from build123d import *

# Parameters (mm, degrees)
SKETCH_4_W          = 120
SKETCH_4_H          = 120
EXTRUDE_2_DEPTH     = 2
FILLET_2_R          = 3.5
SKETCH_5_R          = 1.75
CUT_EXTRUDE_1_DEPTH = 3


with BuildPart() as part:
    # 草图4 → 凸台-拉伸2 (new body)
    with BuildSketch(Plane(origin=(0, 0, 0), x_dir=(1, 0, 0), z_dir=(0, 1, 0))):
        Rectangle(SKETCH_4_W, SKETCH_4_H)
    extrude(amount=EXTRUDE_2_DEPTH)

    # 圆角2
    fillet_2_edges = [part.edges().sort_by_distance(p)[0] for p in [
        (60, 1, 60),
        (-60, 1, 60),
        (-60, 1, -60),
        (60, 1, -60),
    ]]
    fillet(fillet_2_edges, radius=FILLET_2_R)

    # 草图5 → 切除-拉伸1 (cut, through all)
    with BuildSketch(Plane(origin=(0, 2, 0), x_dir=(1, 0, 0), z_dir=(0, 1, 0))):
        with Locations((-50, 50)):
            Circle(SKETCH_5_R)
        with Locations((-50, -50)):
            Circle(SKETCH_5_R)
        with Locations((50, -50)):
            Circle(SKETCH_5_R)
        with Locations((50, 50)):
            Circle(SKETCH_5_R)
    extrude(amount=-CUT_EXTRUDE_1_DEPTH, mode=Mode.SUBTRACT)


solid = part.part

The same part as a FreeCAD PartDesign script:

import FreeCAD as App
import Part
import Sketcher


def edges_at(feature, points):
    """Names of the edges that pass closest to the given points."""
    edges = feature.Shape.Edges
    near = lambda p: min(range(len(edges)), key=lambda i: edges[i].distToShape(Part.Vertex(*p))[0])
    return sorted({f"Edge{near(p) + 1}" for p in points})

doc = App.newDocument("Part")
params = doc.addObject("Spreadsheet::Sheet", "Params")
for row, (alias, value) in enumerate([
    ("sketch1_width", "120 mm"),
    ("pad1_length", "2 mm"),
    ("fillet_radius", "3.5 mm"),
    ("sketch2_diameter", "3.5 mm"),
], start=1):
    params.set(f"A{row}", alias)
    params.set(f"B{row}", "=" + value)
    params.setAlias(f"B{row}", alias)

body = doc.addObject("PartDesign::Body", "Body")

# Sketch on XZ plane
sketch1 = body.newObject("Sketcher::SketchObject", "Sketch")
sketch1.AttachmentSupport = (doc.getObject("XZ_Plane"), [""])
sketch1.MapMode = "FlatFace"
sketch1.addGeometry(Part.LineSegment(App.Vector(-60, -60, 0), App.Vector(-60, 60, 0)), False)
sketch1.addGeometry(Part.LineSegment(App.Vector(-60, 60, 0), App.Vector(60, 60, 0)), False)
sketch1.addGeometry(Part.LineSegment(App.Vector(60, 60, 0), App.Vector(60, -60, 0)), False)
sketch1.addGeometry(Part.LineSegment(App.Vector(60, -60, 0), App.Vector(-60, -60, 0)), False)
sketch1.addConstraint(Sketcher.Constraint("Coincident", 0, 2, 1, 1))
sketch1.addConstraint(Sketcher.Constraint("Coincident", 1, 2, 2, 1))
sketch1.addConstraint(Sketcher.Constraint("Coincident", 2, 2, 3, 1))
sketch1.addConstraint(Sketcher.Constraint("Coincident", 3, 2, 0, 1))
sketch1.addConstraint(Sketcher.Constraint("Vertical", 0))
sketch1.addConstraint(Sketcher.Constraint("Horizontal", 1))
sketch1.addConstraint(Sketcher.Constraint("Vertical", 2))
sketch1.addConstraint(Sketcher.Constraint("Horizontal", 3))
sketch1.addConstraint(Sketcher.Constraint("Symmetric", 0, 2, 2, 2, -1, 1))
sketch1.addConstraint(Sketcher.Constraint("Equal", 3, 0))
sketch1.addConstraint(Sketcher.Constraint("DistanceX", 1, 1, 1, 2, 120.0))
sketch1.setExpression("Constraints[10]", "Params.sketch1_width")
pad1 = body.newObject("PartDesign::Pad", "Pad")
pad1.Profile = sketch1
pad1.setExpression("Length", "Params.pad1_length")
pad1.Reversed = True
doc.recompute()

fillet = body.newObject("PartDesign::Fillet", "Fillet")
fillet.Base = (pad1, edges_at(pad1, [
    (60, 1, 60),
    (-60, 1, 60),
    (-60, 1, -60),
    (60, 1, -60),
]))
fillet.setExpression("Radius", "Params.fillet_radius")

# Sketch on XZ plane
sketch2 = body.newObject("Sketcher::SketchObject", "Sketch001")
sketch2.AttachmentSupport = (doc.getObject("XZ_Plane"), [""])
sketch2.MapMode = "FlatFace"
sketch2.AttachmentOffset = App.Placement(App.Vector(0, 0, -2), App.Rotation())
sketch2.addGeometry(Part.Circle(App.Vector(-50, -50, 0), App.Vector(0, 0, 1), 1.8), False)
sketch2.addGeometry(Part.Circle(App.Vector(-50, 50, 0), App.Vector(0, 0, 1), 1.8), False)
sketch2.addGeometry(Part.Circle(App.Vector(50, 50, 0), App.Vector(0, 0, 1), 1.8), False)
sketch2.addGeometry(Part.Circle(App.Vector(50, -50, 0), App.Vector(0, 0, 1), 1.8), False)
sketch2.addConstraint(Sketcher.Constraint("Equal", 0, 1))
sketch2.addConstraint(Sketcher.Constraint("Equal", 1, 2))
sketch2.addConstraint(Sketcher.Constraint("Equal", 2, 3))
sketch2.addConstraint(Sketcher.Constraint("Symmetric", 0, 3, 2, 3, -1, 1))
sketch2.addConstraint(Sketcher.Constraint("Symmetric", 1, 3, 3, 3, -1, 1))
sketch2.addConstraint(Sketcher.Constraint("Symmetric", 1, 3, 2, 3, -2))
sketch2.addConstraint(Sketcher.Constraint("Diameter", 0, 3.5))
sketch2.addConstraint(Sketcher.Constraint("DistanceX", 0, 3, -1, 1, 50.0))
sketch2.addConstraint(Sketcher.Constraint("DistanceY", 0, 3, -1, 1, 50.0))
sketch2.setExpression("Constraints[6]", "Params.sketch2_diameter")
pocket1 = body.newObject("PartDesign::Pocket", "Pocket")
pocket1.Profile = sketch2
pocket1.Type = "ThroughAll"
pocket1.Reversed = True

doc.recompute()
